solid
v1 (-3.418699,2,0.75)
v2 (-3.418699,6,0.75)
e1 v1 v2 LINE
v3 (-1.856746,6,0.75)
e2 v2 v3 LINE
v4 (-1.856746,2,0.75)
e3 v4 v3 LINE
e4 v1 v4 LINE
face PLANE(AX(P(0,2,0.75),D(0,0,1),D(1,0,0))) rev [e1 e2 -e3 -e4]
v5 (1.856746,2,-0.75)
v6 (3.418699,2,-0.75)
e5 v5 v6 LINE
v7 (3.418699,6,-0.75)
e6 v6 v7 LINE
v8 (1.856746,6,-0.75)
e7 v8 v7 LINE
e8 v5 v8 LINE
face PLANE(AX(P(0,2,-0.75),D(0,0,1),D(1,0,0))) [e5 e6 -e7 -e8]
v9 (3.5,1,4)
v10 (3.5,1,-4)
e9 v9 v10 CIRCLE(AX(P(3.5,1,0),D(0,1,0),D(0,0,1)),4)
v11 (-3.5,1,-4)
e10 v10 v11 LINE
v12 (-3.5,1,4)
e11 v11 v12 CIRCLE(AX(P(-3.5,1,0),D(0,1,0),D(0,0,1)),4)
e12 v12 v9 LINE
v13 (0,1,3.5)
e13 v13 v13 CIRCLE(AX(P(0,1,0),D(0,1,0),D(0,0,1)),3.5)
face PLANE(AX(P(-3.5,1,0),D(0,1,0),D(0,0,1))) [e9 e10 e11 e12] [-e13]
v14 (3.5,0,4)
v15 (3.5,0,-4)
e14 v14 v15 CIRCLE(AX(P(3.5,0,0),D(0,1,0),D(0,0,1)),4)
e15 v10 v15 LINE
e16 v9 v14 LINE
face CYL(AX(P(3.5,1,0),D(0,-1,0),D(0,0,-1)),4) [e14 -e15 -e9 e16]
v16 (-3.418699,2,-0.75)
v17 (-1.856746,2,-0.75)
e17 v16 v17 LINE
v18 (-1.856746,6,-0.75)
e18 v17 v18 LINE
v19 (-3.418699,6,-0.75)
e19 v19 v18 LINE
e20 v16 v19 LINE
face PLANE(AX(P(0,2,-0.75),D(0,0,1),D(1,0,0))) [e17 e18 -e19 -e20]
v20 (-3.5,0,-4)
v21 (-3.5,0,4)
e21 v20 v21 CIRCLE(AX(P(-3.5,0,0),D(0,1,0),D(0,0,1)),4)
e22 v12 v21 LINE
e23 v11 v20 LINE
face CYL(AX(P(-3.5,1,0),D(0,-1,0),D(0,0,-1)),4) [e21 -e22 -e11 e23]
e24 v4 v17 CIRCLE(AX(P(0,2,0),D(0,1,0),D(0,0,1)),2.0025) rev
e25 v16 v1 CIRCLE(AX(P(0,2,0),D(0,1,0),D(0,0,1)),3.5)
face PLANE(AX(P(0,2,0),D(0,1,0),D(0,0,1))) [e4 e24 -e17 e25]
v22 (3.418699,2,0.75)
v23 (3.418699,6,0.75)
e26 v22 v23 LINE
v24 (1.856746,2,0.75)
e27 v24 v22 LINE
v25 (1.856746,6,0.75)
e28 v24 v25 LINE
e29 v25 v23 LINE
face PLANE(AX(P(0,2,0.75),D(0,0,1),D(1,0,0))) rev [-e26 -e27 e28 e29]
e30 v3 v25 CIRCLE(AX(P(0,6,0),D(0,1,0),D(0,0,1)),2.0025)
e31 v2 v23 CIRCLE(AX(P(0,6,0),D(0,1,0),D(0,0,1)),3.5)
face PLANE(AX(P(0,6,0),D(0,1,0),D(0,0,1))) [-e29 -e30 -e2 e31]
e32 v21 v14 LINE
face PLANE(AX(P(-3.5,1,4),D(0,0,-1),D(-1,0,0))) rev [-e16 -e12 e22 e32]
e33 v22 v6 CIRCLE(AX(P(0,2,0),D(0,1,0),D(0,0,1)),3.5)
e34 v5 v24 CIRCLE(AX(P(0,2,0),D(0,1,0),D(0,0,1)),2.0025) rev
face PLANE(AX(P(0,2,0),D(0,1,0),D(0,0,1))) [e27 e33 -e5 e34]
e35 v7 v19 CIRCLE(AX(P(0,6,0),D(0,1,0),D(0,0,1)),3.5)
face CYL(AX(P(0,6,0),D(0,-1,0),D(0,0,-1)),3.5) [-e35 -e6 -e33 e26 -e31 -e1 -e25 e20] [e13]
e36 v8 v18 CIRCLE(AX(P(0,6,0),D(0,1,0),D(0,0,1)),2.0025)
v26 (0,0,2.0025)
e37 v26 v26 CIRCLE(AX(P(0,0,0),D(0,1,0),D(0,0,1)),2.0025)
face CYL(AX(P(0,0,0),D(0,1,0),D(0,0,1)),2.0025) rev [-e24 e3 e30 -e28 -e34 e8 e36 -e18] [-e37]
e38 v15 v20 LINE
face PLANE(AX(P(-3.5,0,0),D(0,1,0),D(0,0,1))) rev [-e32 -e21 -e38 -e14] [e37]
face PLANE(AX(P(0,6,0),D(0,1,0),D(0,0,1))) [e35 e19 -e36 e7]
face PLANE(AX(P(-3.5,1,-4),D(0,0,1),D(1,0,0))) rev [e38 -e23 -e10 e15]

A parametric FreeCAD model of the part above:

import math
import FreeCAD as App
import Part
import Sketcher
from FreeCAD import Vector
Q = App.Units.Quantity

doc = App.newDocument("Part")
params = doc.addObject("Spreadsheet::Sheet", "Params")
for row, (alias, value) in enumerate([
    ("sketch1_radius", "4 mm"),
    ("sketch1_width", "7 mm"),
    ("pad1_length", "1 mm"),
    ("sketch2_diameter", "7 mm"),
    ("pad2_length", "5 mm"),
    ("sketch4_radius", "3.5 mm"),
    ("pocket2_length", "4 mm"),
], start=1):
    params.set(f"A{row}", alias)
    params.set(f"B{row}", "=" + value)
    params.setAlias(f"B{row}", alias)

body = doc.addObject("PartDesign::Body", "Body")

sketch1 = body.newObject("Sketcher::SketchObject", "Sketch")
sketch1.AttachmentSupport = (doc.getObject("XZ_Plane"), [""])
sketch1.MapMode = "FlatFace"
sketch1.addGeometry([
    Part.LineSegment(Vector(3.5, -4, 0), Vector(-3.5, -4, 0)),
    Part.ArcOfCircle(Part.Circle(Vector(-3.5, 0, 0), Vector(0, 0, 1), 4), math.radians(90), math.radians(270)),
    Part.LineSegment(Vector(-3.5, 4, 0), Vector(3.5, 4, 0)),
    Part.ArcOfCircle(Part.Circle(Vector(3.5, 0, 0), Vector(0, 0, 1), 4), math.radians(-90), math.radians(90)),
], False)
sketch1.addConstraint([
    Sketcher.Constraint("Tangent", 0, 2, 1, 2),
    Sketcher.Constraint("Tangent", 1, 1, 2, 1),
    Sketcher.Constraint("Tangent", 2, 2, 3, 2),
    Sketcher.Constraint("Tangent", 3, 1, 0, 1),
    Sketcher.Constraint("Horizontal", 0),
    Sketcher.Constraint("Horizontal", 2),
    Sketcher.Constraint("Symmetric", 1, 3, 3, 3, -1, 1),
    Sketcher.Constraint("Radius", 1, Q("4 mm")),
    Sketcher.Constraint("DistanceX", 0, 2, 0, 1, Q("7 mm")),
])
sketch1.setExpression("Constraints[7]", "Params.sketch1_radius")
sketch1.setExpression("Constraints[8]", "Params.sketch1_width")
pad1 = body.newObject("PartDesign::Pad", "Pad")
pad1.Profile = sketch1
pad1.setExpression("Length", "Params.pad1_length")
pad1.Reversed = True

sketch2 = body.newObject("Sketcher::SketchObject", "Sketch001")
sketch2.AttachmentSupport = (doc.getObject("XZ_Plane"), [""])
sketch2.MapMode = "FlatFace"
sketch2.AttachmentOffset = App.Placement(Vector(0, 0, -1), App.Rotation())
sketch2.addGeometry(Part.Circle(Vector(0, 0, 0), Vector(0, 0, 1), 3.5), False)
sketch2.addConstraint([
    Sketcher.Constraint("Coincident", 0, 3, -1, 1),
    Sketcher.Constraint("Diameter", 0, Q("7 mm")),
])
sketch2.setExpression("Constraints[1]", "Params.sketch2_diameter")
pad2 = body.newObject("PartDesign::Pad", "Pad001")
pad2.Profile = sketch2
pad2.setExpression("Length", "Params.pad2_length")
pad2.Reversed = True

sketch3 = body.newObject("Sketcher::SketchObject", "Sketch002")
sketch3.AttachmentSupport = (doc.getObject("XZ_Plane"), [""])
sketch3.MapMode = "FlatFace"
sketch3.AttachmentOffset = App.Placement(Vector(0, 0, -6), App.Rotation())
sketch3.addGeometry(Part.Circle(Vector(0, 0, 0), Vector(0, 0, 1), 2.0025), False)
sketch3.addConstraint([
    Sketcher.Constraint("Coincident", 0, 3, -1, 1),
    Sketcher.Constraint("Diameter", 0, Q("4.005 mm")),
])
pocket1 = body.newObject("PartDesign::Pocket", "Pocket")
pocket1.Profile = sketch3
pocket1.Type = "ThroughAll"
pocket1.Reversed = True

sketch4 = body.newObject("Sketcher::SketchObject", "Sketch003")
sketch4.AttachmentSupport = (doc.getObject("XZ_Plane"), [""])
sketch4.MapMode = "FlatFace"
sketch4.AttachmentOffset = App.Placement(Vector(0, 0, -6), App.Rotation())
sketch4.addGeometry([
    Part.LineSegment(Vector(-1.856746, -0.75, 0), Vector(-3.418699, -0.75, 0)),
    Part.ArcOfCircle(Part.Circle(Vector(0, 0, 0), Vector(0, 0, 1), 3.5), math.radians(167.626375), math.radians(192.373625)),
    Part.LineSegment(Vector(-3.418699, 0.75, 0), Vector(-1.856746, 0.75, 0)),
    Part.ArcOfCircle(Part.Circle(Vector(0, 0, 0), Vector(0, 0, 1), 2.0025), math.radians(158.00462), math.radians(201.99538)),
    Part.ArcOfCircle(Part.Circle(Vector(0, 0, 0), Vector(0, 0, 1), 3.5), math.radians(-12.373625), math.radians(12.373625)),
    Part.LineSegment(Vector(3.418699, -0.75, 0), Vector(1.856746, -0.75, 0)),
    Part.ArcOfCircle(Part.Circle(Vector(0, 0, 0), Vector(0, 0, 1), 2.0025), math.radians(-21.99538), math.radians(21.99538)),
    Part.LineSegment(Vector(1.856746, 0.75, 0), Vector(3.418699, 0.75, 0)),
], False)
sketch4.addConstraint([
    Sketcher.Constraint("Coincident", 0, 2, 1, 2),
    Sketcher.Constraint("Coincident", 1, 1, 2, 1),
    Sketcher.Constraint("Coincident", 2, 2, 3, 1),
    Sketcher.Constraint("Coincident", 3, 2, 0, 1),
    Sketcher.Constraint("Coincident", 4, 1, 5, 1),
    Sketcher.Constraint("Coincident", 5, 2, 6, 1),
    Sketcher.Constraint("Coincident", 6, 2, 7, 1),
    Sketcher.Constraint("Coincident", 7, 2, 4, 2),
    Sketcher.Constraint("Horizontal", 0),
    Sketcher.Constraint("Horizontal", 2),
    Sketcher.Constraint("Horizontal", 5),
    Sketcher.Constraint("Horizontal", 7),
    Sketcher.Constraint("Coincident", 1, 3, -1, 1),
    Sketcher.Constraint("Coincident", 3, 3, -1, 1),
    Sketcher.Constraint("Coincident", 4, 3, -1, 1),
    Sketcher.Constraint("Coincident", 6, 3, -1, 1),
    Sketcher.Constraint("Equal", 1, 4),
    Sketcher.Constraint("Equal", 3, 6),
    Sketcher.Constraint("Horizontal", 3, 2, 4, 1),
    Sketcher.Constraint("Horizontal", 2, 2, 6, 2),
    Sketcher.Constraint("Vertical", 0, 2, 1, 1),
    Sketcher.Constraint("Radius", 1, Q("3.5 mm")),
    Sketcher.Constraint("Radius", 3, Q("2.0025 mm")),
    Sketcher.Constraint("DistanceY", 0, 2, 1, 1, Q("1.5 mm")),
])
sketch4.setExpression("Constraints[21]", "Params.sketch4_radius")
pocket2 = body.newObject("PartDesign::Pocket", "Pocket001")
pocket2.Profile = sketch4
pocket2.setExpression("Length", "Params.pocket2_length")
pocket2.Reversed = True

doc.recompute()
